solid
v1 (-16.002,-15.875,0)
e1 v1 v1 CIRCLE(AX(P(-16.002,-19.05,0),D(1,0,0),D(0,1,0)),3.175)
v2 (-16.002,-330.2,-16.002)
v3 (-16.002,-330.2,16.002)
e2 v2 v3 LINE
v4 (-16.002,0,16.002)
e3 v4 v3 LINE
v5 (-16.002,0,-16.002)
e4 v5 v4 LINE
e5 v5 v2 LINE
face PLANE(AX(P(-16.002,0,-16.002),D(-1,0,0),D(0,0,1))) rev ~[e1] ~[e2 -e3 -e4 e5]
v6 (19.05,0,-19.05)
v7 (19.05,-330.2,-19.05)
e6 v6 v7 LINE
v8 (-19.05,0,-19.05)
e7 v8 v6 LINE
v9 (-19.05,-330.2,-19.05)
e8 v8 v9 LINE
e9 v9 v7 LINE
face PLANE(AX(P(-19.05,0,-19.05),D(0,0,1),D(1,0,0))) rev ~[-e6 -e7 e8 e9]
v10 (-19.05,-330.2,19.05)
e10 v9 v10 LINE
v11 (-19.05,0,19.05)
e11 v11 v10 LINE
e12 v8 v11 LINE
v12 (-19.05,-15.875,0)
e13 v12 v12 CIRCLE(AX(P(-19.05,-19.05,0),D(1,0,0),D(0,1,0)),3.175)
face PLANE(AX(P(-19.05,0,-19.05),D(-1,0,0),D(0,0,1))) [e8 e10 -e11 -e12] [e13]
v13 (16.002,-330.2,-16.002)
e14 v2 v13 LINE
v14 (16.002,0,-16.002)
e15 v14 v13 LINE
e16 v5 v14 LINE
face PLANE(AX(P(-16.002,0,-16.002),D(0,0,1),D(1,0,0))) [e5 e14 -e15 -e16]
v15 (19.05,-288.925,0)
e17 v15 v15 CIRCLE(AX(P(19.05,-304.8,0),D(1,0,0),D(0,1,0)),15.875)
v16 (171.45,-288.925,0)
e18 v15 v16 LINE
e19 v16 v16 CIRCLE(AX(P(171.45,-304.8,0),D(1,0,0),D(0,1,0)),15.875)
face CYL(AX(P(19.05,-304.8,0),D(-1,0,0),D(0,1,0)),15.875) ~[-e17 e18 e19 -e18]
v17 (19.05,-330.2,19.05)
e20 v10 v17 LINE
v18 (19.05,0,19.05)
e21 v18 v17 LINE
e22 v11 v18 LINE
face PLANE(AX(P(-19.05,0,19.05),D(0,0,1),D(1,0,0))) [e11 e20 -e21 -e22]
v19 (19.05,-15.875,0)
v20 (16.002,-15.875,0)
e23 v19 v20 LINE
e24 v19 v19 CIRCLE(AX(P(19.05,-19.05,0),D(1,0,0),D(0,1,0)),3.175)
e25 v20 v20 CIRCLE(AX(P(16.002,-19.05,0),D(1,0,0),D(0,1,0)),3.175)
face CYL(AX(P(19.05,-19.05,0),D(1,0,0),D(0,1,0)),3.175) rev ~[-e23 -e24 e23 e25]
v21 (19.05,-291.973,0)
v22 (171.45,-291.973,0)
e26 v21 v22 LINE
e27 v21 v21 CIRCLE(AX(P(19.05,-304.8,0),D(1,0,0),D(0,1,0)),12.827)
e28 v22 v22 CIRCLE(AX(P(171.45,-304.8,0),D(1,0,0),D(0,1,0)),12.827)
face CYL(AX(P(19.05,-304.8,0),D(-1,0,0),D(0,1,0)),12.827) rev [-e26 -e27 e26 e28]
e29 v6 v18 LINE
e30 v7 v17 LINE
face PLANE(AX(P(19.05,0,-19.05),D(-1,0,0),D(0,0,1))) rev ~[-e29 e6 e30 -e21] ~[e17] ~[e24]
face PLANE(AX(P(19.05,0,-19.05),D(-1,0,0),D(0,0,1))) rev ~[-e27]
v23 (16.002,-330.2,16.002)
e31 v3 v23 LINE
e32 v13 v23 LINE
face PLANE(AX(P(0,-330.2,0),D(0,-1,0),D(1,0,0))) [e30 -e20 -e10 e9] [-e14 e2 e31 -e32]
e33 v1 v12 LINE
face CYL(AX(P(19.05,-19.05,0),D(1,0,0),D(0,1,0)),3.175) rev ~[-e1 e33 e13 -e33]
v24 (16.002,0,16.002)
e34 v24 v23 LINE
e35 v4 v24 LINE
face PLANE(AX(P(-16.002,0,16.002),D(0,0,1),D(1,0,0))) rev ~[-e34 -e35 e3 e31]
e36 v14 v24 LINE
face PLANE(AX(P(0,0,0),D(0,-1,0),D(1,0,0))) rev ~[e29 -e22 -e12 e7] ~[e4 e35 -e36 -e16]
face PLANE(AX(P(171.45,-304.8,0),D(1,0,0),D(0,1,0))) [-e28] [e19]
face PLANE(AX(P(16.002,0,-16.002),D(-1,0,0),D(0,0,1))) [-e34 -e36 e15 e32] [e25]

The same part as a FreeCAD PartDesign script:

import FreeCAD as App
import Part
import Sketcher
Q = App.Units.Quantity


def add_polygon(sketch, points):
    """Adds a closed chain of lines whose ends are joined by coincident constraints."""
    first, n = sketch.GeometryCount, len(points)
    for a, b in zip(points, points[1:] + points[:1]):
        sketch.addGeometry(Part.LineSegment(App.Vector(*a, 0), App.Vector(*b, 0)), False)
    for i in range(n):
        sketch.addConstraint(Sketcher.Constraint("Coincident", first + i, 2, first + (i + 1) % n, 1))

doc = App.newDocument("Part")
body = doc.addObject("PartDesign::Body", "Body")

# Sketch on XZ plane
sketch1 = body.newObject("Sketcher::SketchObject", "Sketch")
sketch1.AttachmentSupport = (doc.getObject("XZ_Plane"), [""])
sketch1.MapMode = "FlatFace"
add_polygon(sketch1, [(-19.05, 19.05), (-19.05, -19.05), (19.05, -19.05), (19.05, 19.05)])  # lines 0-3
add_polygon(sketch1, [(16.002, -16.002), (-16.002, -16.002), (-16.002, 16.002), (16.002, 16.002)])  # lines 4-7
sketch1.addConstraint(Sketcher.Constraint("Vertical", 0))
sketch1.addConstraint(Sketcher.Constraint("Horizontal", 1))
sketch1.addConstraint(Sketcher.Constraint("Vertical", 2))
sketch1.addConstraint(Sketcher.Constraint("Horizontal", 3))
sketch1.addConstraint(Sketcher.Constraint("Horizontal", 4))
sketch1.addConstraint(Sketcher.Constraint("Vertical", 5))
sketch1.addConstraint(Sketcher.Constraint("Horizontal", 6))
sketch1.addConstraint(Sketcher.Constraint("Vertical", 7))
sketch1.addConstraint(Sketcher.Constraint("Symmetric", 0, 2, 2, 2, -1, 1))
sketch1.addConstraint(Sketcher.Constraint("Symmetric", 4, 2, 6, 2, -1, 1))
sketch1.addConstraint(Sketcher.Constraint("Equal", 3, 0))
sketch1.addConstraint(Sketcher.Constraint("Equal", 6, 5))
sketch1.addConstraint(Sketcher.Constraint("DistanceX", 1, 1, 1, 2, Q("1.5 in")))
sketch1.addConstraint(Sketcher.Constraint("DistanceX", 4, 2, 4, 1, Q("1.26 in")))
pad1 = body.newObject("PartDesign::Pad", "Pad")
pad1.Profile = sketch1
pad1.Length = Q("13 in")

# Sketch on YZ plane
sketch2 = body.newObject("Sketcher::SketchObject", "Sketch001")
sketch2.AttachmentSupport = (doc.getObject("YZ_Plane"), [""])
sketch2.MapMode = "FlatFace"
sketch2.AttachmentOffset = App.Placement(App.Vector(0, 0, 0.75 * 25.4), App.Rotation())
sketch2.addGeometry(Part.Circle(App.Vector(-304.8, 0, 0), App.Vector(0, 0, 1), 15.875), False)
sketch2.addGeometry(Part.Circle(App.Vector(-304.8, 0, 0), App.Vector(0, 0, 1), 12.827), False)
sketch2.addConstraint(Sketcher.Constraint("Coincident", 1, 3, 0, 3))
sketch2.addConstraint(Sketcher.Constraint("PointOnObject", 0, 3, -1))
sketch2.addConstraint(Sketcher.Constraint("Diameter", 0, Q("1.25 in")))
sketch2.addConstraint(Sketcher.Constraint("Diameter", 1, Q("1.01 in")))
sketch2.addConstraint(Sketcher.Constraint("DistanceX", 0, 3, -1, 1, Q("12 in")))
pad2 = body.newObject("PartDesign::Pad", "Pad001")
pad2.Profile = sketch2
pad2.Length = Q("6 in")

# Sketch on YZ plane
sketch3 = body.newObject("Sketcher::SketchObject", "Sketch002")
sketch3.AttachmentSupport = (doc.getObject("YZ_Plane"), [""])
sketch3.MapMode = "FlatFace"
sketch3.AttachmentOffset = App.Placement(App.Vector(0, 0, 0.75 * 25.4), App.Rotation())
sketch3.addGeometry(Part.Circle(App.Vector(-19.05, 0, 0), App.Vector(0, 0, 1), 3.175), False)
sketch3.addConstraint(Sketcher.Constraint("PointOnObject", 0, 3, -1))
sketch3.addConstraint(Sketcher.Constraint("Diameter", 0, Q("0.25 in")))
sketch3.addConstraint(Sketcher.Constraint("DistanceX", 0, 3, -1, 1, Q("0.75 in")))
pocket1 = body.newObject("PartDesign::Pocket", "Pocket")
pocket1.Profile = sketch3
pocket1.Type = "ThroughAll"

doc.recompute()
